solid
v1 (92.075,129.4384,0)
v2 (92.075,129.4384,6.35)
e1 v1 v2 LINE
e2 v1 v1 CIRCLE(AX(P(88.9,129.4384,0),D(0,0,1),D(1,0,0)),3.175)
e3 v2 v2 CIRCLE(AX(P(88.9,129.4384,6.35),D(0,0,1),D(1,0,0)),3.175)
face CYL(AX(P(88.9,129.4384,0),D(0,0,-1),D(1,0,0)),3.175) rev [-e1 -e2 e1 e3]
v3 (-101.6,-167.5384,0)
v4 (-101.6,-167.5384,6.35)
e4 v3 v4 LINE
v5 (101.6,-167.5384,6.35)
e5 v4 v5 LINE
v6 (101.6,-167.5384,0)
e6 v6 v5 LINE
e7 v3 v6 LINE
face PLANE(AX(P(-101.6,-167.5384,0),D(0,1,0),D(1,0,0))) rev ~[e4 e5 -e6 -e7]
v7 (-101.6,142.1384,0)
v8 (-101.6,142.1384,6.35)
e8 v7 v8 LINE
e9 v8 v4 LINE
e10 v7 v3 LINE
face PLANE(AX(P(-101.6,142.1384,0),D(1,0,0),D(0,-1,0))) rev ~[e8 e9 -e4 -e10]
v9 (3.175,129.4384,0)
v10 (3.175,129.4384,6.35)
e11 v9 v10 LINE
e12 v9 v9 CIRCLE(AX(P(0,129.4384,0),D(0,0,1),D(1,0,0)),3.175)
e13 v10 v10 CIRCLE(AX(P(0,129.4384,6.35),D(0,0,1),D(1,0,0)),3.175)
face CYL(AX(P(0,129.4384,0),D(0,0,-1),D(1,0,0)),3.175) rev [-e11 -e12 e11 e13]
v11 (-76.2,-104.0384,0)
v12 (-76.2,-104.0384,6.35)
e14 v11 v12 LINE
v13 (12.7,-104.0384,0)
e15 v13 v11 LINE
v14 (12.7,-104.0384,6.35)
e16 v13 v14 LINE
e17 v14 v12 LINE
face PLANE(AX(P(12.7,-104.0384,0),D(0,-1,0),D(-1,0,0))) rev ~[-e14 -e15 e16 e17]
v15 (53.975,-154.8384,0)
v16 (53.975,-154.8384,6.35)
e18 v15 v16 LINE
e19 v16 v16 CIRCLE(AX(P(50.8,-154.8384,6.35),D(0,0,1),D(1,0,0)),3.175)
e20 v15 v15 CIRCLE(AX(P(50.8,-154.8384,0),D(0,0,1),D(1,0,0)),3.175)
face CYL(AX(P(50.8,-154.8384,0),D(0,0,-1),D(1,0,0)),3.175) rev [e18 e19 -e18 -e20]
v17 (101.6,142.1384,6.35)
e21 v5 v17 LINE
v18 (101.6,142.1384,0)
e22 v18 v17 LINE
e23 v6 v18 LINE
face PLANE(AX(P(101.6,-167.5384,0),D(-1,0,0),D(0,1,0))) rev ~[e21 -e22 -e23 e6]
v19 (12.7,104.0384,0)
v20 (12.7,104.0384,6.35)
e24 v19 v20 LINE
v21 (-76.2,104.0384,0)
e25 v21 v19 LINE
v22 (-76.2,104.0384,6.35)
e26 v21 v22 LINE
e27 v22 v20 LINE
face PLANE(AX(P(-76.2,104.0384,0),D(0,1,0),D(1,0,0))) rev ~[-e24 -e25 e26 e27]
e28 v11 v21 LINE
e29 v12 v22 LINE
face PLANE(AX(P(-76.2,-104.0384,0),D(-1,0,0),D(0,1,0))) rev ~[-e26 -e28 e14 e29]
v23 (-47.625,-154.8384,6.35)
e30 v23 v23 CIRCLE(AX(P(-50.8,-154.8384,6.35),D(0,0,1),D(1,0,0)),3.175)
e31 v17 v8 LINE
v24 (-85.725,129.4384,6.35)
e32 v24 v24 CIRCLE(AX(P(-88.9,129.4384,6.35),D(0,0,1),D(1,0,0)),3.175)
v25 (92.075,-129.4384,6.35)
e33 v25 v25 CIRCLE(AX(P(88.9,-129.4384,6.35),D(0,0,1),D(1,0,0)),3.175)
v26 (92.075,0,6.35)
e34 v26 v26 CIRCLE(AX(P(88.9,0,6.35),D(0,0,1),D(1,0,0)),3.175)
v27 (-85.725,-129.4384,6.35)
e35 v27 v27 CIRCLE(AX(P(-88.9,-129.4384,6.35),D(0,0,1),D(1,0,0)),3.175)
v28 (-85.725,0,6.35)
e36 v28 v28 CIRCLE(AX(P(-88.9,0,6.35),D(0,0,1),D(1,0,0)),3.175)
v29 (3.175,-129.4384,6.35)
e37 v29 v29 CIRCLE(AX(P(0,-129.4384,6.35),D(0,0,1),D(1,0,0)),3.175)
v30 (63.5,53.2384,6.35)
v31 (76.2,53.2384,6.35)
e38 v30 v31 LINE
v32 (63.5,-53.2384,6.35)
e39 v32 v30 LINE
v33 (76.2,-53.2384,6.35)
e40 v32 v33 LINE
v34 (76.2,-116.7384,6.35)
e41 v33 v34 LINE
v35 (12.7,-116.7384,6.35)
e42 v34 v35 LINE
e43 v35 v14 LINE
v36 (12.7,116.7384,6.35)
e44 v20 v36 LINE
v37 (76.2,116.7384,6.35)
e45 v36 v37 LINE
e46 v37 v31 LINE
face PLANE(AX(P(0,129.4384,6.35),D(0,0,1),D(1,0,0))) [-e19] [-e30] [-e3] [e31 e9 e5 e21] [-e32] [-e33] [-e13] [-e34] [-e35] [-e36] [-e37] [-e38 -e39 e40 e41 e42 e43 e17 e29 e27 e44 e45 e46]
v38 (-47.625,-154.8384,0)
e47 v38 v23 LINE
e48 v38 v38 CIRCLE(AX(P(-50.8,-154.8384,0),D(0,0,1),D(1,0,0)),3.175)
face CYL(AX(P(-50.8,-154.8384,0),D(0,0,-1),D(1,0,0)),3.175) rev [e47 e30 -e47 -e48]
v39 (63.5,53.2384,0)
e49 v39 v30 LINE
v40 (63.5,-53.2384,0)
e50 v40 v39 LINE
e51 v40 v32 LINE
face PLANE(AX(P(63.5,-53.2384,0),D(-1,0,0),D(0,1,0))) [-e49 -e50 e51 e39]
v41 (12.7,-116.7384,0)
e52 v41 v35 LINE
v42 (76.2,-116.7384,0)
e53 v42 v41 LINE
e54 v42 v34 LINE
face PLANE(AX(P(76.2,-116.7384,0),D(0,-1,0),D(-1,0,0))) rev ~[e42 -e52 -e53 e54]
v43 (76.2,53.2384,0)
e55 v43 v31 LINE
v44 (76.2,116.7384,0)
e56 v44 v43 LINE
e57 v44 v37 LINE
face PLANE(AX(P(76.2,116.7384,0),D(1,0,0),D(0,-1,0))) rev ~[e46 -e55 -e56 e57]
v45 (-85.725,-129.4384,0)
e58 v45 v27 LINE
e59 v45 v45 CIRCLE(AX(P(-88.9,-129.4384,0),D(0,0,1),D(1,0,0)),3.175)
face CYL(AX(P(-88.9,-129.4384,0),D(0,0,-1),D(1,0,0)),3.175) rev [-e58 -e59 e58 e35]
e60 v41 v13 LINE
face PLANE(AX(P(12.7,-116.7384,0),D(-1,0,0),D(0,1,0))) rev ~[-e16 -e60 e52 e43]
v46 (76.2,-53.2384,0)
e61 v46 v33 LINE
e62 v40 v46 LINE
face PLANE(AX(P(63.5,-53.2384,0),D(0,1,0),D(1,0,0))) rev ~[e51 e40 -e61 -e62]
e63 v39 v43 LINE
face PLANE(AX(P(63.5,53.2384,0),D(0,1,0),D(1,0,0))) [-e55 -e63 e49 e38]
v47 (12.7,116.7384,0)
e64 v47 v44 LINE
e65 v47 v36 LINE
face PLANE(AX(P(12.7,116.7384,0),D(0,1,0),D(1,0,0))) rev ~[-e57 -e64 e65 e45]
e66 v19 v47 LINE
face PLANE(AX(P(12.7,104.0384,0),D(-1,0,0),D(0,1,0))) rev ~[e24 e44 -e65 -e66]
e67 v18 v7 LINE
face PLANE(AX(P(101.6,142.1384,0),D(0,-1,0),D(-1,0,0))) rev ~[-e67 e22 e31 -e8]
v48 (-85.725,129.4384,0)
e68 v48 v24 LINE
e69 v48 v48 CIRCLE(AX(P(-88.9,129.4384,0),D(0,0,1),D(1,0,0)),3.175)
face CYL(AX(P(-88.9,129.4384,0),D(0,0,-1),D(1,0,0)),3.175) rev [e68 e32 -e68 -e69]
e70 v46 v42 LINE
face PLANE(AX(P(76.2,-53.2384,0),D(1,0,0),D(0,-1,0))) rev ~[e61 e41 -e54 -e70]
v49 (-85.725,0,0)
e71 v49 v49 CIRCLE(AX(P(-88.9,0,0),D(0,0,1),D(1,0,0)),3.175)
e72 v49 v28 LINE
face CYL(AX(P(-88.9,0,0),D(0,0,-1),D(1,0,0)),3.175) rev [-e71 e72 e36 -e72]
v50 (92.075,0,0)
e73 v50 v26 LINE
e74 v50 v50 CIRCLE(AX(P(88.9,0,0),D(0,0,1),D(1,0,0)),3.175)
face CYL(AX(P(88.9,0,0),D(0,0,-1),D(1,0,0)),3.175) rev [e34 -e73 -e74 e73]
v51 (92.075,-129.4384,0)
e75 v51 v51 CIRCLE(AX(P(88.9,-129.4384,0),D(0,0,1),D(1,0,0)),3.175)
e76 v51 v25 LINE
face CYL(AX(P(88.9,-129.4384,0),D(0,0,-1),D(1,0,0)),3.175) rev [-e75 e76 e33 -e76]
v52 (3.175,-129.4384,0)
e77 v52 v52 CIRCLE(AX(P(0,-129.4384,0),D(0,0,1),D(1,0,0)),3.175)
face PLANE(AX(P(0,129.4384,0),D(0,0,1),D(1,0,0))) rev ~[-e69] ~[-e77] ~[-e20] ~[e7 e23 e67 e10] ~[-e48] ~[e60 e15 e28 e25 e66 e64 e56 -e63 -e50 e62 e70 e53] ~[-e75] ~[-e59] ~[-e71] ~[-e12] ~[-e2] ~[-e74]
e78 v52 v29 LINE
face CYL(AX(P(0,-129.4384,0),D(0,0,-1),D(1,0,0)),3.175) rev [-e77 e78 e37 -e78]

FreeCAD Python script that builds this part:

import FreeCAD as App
import Part
import Sketcher
Q = App.Units.Quantity


def add_polygon(sketch, points):
    """Adds a closed chain of lines whose ends are joined by coincident constraints."""
    first, n = sketch.GeometryCount, len(points)
    for a, b in zip(points, points[1:] + points[:1]):
        sketch.addGeometry(Part.LineSegment(App.Vector(*a, 0), App.Vector(*b, 0)), False)
    for i in range(n):
        sketch.addConstraint(Sketcher.Constraint("Coincident", first + i, 2, first + (i + 1) % n, 1))

doc = App.newDocument("Part")
body = doc.addObject("PartDesign::Body", "Body")

# Sketch on XY plane
sketch1 = body.newObject("Sketcher::SketchObject", "Sketch")
sketch1.AttachmentSupport = (doc.getObject("XY_Plane"), [""])
sketch1.MapMode = "FlatFace"
add_polygon(sketch1, [(101.6, 142.1), (-101.6, 142.1), (-101.6, -167.5), (101.6, -167.5)])  # lines 0-3
sketch1.addGeometry(Part.Circle(App.Vector(-88.9, -129.4, 0), App.Vector(0, 0, 1), 3.2), False)  # 4
sketch1.addGeometry(Part.Circle(App.Vector(-50.8, -154.8, 0), App.Vector(0, 0, 1), 3.2), False)  # 5
sketch1.addGeometry(Part.Circle(App.Vector(0, -129.4, 0), App.Vector(0, 0, 1), 3.2), False)  # 6
sketch1.addGeometry(Part.Circle(App.Vector(50.8, -154.8, 0), App.Vector(0, 0, 1), 3.2), False)  # 7
sketch1.addGeometry(Part.Circle(App.Vector(88.9, -129.4, 0), App.Vector(0, 0, 1), 3.2), False)  # 8
sketch1.addGeometry(Part.Circle(App.Vector(-88.9, 0, 0), App.Vector(0, 0, 1), 3.2), False)  # 9
sketch1.addGeometry(Part.Circle(App.Vector(-88.9, 129.4, 0), App.Vector(0, 0, 1), 3.2), False)  # 10
add_polygon(sketch1, [(12.7, 116.7), (76.2, 116.7), (76.2, 53.2), (63.5, 53.2), (63.5, -53.2), (76.2, -53.2), (76.2, -116.7), (12.7, -116.7), (12.7, -104), (-76.2, -104), (-76.2, 104), (12.7, 104)])  # lines 11-22
sketch1.addGeometry(Part.Circle(App.Vector(88.9, 0, 0), App.Vector(0, 0, 1), 3.2), False)  # 23
sketch1.addGeometry(Part.Circle(App.Vector(0, 129.4, 0), App.Vector(0, 0, 1), 3.2), False)  # 24
sketch1.addGeometry(Part.Circle(App.Vector(88.9, 129.4, 0), App.Vector(0, 0, 1), 3.2), False)  # 25
sketch1.addConstraint([
    Sketcher.Constraint("Horizontal", 0),
    Sketcher.Constraint("Vertical", 1),
    Sketcher.Constraint("Horizontal", 2),
    Sketcher.Constraint("Vertical", 3),
    Sketcher.Constraint("Horizontal", 11),
    Sketcher.Constraint("Vertical", 12),
    Sketcher.Constraint("Horizontal", 13),
    Sketcher.Constraint("Vertical", 14),
    Sketcher.Constraint("Horizontal", 15),
    Sketcher.Constraint("Vertical", 16),
    Sketcher.Constraint("Horizontal", 17),
    Sketcher.Constraint("Vertical", 18),
    Sketcher.Constraint("Horizontal", 19),
    Sketcher.Constraint("Vertical", 20),
    Sketcher.Constraint("Horizontal", 21),
    Sketcher.Constraint("Vertical", 22),
    Sketcher.Constraint("Equal", 4, 5),
    Sketcher.Constraint("Equal", 5, 6),
    Sketcher.Constraint("Equal", 6, 7),
    Sketcher.Constraint("Equal", 7, 8),
    Sketcher.Constraint("Equal", 8, 9),
    Sketcher.Constraint("Equal", 9, 10),
    Sketcher.Constraint("Equal", 10, 23),
    Sketcher.Constraint("Equal", 23, 24),
    Sketcher.Constraint("Equal", 24, 25),
    Sketcher.Constraint("Symmetric", 8, 3, 10, 3, -1, 1),
    Sketcher.Constraint("Symmetric", 9, 3, 23, 3, -1, 1),
    Sketcher.Constraint("Symmetric", 6, 3, 24, 3, -1, 1),
    Sketcher.Constraint("Symmetric", 4, 3, 25, 3, -1, 1),
    Sketcher.Constraint("Symmetric", 5, 3, 7, 3, -2),
    Sketcher.Constraint("Symmetric", 4, 3, 8, 3, -2),
    Sketcher.Constraint("Symmetric", 12, 2, 15, 2, -1),
    Sketcher.Constraint("Symmetric", 18, 2, 21, 2, -1),
    Sketcher.Constraint("PointOnObject", 6, 3, -2),
    Sketcher.Constraint("PointOnObject", 9, 3, -1),
    Sketcher.Constraint("Horizontal", 4, 3, 6, 3),
    Sketcher.Constraint("Vertical", 4, 3, 9, 3),
    Sketcher.Constraint("Equal", 17, 12),
    Sketcher.Constraint("Equal", 12, 16),
    Sketcher.Constraint("Equal", 15, 18),
    Sketcher.Constraint("Diameter", 4, Q("0.25 in")),
    Sketcher.Constraint("DistanceX", 0, 2, 0, 1, Q("8 in")),
    Sketcher.Constraint("DistanceX", 11, 1, 11, 2, Q("2.5 in")),
    Sketcher.Constraint("DistanceX", 13, 2, 13, 1, Q("0.5 in")),
    Sketcher.Constraint("DistanceX", 19, 2, 19, 1, Q("3.5 in")),
    Sketcher.Constraint("DistanceX", 5, 3, -1, 1, Q("2 in")),
    Sketcher.Constraint("DistanceX", 0, 2, -1, 1, Q("4 in")),
    Sketcher.Constraint("DistanceX", -1, 1, 11, 2, Q("3 in")),
    Sketcher.Constraint("DistanceY", 5, 3, 4, 3, Q("1 in")),
    Sketcher.Constraint("DistanceX", 4, 3, 8, 3, Q("7 in")),
    Sketcher.Constraint("DistanceY", 11, 2, 3, 2, Q("1 in")),
    Sketcher.Constraint("DistanceY", 12, 2, 25, 3, Q("3 in")),
    Sketcher.Constraint("DistanceY", 2, 2, 16, 2, Q("2 in")),
    Sketcher.Constraint("DistanceY", 1, 2, 1, 1, Q("12.192 in")),
])
pad1 = body.newObject("PartDesign::Pad", "Pad")
pad1.Profile = sketch1
pad1.Length = Q("0.25 in")

doc.recompute()
